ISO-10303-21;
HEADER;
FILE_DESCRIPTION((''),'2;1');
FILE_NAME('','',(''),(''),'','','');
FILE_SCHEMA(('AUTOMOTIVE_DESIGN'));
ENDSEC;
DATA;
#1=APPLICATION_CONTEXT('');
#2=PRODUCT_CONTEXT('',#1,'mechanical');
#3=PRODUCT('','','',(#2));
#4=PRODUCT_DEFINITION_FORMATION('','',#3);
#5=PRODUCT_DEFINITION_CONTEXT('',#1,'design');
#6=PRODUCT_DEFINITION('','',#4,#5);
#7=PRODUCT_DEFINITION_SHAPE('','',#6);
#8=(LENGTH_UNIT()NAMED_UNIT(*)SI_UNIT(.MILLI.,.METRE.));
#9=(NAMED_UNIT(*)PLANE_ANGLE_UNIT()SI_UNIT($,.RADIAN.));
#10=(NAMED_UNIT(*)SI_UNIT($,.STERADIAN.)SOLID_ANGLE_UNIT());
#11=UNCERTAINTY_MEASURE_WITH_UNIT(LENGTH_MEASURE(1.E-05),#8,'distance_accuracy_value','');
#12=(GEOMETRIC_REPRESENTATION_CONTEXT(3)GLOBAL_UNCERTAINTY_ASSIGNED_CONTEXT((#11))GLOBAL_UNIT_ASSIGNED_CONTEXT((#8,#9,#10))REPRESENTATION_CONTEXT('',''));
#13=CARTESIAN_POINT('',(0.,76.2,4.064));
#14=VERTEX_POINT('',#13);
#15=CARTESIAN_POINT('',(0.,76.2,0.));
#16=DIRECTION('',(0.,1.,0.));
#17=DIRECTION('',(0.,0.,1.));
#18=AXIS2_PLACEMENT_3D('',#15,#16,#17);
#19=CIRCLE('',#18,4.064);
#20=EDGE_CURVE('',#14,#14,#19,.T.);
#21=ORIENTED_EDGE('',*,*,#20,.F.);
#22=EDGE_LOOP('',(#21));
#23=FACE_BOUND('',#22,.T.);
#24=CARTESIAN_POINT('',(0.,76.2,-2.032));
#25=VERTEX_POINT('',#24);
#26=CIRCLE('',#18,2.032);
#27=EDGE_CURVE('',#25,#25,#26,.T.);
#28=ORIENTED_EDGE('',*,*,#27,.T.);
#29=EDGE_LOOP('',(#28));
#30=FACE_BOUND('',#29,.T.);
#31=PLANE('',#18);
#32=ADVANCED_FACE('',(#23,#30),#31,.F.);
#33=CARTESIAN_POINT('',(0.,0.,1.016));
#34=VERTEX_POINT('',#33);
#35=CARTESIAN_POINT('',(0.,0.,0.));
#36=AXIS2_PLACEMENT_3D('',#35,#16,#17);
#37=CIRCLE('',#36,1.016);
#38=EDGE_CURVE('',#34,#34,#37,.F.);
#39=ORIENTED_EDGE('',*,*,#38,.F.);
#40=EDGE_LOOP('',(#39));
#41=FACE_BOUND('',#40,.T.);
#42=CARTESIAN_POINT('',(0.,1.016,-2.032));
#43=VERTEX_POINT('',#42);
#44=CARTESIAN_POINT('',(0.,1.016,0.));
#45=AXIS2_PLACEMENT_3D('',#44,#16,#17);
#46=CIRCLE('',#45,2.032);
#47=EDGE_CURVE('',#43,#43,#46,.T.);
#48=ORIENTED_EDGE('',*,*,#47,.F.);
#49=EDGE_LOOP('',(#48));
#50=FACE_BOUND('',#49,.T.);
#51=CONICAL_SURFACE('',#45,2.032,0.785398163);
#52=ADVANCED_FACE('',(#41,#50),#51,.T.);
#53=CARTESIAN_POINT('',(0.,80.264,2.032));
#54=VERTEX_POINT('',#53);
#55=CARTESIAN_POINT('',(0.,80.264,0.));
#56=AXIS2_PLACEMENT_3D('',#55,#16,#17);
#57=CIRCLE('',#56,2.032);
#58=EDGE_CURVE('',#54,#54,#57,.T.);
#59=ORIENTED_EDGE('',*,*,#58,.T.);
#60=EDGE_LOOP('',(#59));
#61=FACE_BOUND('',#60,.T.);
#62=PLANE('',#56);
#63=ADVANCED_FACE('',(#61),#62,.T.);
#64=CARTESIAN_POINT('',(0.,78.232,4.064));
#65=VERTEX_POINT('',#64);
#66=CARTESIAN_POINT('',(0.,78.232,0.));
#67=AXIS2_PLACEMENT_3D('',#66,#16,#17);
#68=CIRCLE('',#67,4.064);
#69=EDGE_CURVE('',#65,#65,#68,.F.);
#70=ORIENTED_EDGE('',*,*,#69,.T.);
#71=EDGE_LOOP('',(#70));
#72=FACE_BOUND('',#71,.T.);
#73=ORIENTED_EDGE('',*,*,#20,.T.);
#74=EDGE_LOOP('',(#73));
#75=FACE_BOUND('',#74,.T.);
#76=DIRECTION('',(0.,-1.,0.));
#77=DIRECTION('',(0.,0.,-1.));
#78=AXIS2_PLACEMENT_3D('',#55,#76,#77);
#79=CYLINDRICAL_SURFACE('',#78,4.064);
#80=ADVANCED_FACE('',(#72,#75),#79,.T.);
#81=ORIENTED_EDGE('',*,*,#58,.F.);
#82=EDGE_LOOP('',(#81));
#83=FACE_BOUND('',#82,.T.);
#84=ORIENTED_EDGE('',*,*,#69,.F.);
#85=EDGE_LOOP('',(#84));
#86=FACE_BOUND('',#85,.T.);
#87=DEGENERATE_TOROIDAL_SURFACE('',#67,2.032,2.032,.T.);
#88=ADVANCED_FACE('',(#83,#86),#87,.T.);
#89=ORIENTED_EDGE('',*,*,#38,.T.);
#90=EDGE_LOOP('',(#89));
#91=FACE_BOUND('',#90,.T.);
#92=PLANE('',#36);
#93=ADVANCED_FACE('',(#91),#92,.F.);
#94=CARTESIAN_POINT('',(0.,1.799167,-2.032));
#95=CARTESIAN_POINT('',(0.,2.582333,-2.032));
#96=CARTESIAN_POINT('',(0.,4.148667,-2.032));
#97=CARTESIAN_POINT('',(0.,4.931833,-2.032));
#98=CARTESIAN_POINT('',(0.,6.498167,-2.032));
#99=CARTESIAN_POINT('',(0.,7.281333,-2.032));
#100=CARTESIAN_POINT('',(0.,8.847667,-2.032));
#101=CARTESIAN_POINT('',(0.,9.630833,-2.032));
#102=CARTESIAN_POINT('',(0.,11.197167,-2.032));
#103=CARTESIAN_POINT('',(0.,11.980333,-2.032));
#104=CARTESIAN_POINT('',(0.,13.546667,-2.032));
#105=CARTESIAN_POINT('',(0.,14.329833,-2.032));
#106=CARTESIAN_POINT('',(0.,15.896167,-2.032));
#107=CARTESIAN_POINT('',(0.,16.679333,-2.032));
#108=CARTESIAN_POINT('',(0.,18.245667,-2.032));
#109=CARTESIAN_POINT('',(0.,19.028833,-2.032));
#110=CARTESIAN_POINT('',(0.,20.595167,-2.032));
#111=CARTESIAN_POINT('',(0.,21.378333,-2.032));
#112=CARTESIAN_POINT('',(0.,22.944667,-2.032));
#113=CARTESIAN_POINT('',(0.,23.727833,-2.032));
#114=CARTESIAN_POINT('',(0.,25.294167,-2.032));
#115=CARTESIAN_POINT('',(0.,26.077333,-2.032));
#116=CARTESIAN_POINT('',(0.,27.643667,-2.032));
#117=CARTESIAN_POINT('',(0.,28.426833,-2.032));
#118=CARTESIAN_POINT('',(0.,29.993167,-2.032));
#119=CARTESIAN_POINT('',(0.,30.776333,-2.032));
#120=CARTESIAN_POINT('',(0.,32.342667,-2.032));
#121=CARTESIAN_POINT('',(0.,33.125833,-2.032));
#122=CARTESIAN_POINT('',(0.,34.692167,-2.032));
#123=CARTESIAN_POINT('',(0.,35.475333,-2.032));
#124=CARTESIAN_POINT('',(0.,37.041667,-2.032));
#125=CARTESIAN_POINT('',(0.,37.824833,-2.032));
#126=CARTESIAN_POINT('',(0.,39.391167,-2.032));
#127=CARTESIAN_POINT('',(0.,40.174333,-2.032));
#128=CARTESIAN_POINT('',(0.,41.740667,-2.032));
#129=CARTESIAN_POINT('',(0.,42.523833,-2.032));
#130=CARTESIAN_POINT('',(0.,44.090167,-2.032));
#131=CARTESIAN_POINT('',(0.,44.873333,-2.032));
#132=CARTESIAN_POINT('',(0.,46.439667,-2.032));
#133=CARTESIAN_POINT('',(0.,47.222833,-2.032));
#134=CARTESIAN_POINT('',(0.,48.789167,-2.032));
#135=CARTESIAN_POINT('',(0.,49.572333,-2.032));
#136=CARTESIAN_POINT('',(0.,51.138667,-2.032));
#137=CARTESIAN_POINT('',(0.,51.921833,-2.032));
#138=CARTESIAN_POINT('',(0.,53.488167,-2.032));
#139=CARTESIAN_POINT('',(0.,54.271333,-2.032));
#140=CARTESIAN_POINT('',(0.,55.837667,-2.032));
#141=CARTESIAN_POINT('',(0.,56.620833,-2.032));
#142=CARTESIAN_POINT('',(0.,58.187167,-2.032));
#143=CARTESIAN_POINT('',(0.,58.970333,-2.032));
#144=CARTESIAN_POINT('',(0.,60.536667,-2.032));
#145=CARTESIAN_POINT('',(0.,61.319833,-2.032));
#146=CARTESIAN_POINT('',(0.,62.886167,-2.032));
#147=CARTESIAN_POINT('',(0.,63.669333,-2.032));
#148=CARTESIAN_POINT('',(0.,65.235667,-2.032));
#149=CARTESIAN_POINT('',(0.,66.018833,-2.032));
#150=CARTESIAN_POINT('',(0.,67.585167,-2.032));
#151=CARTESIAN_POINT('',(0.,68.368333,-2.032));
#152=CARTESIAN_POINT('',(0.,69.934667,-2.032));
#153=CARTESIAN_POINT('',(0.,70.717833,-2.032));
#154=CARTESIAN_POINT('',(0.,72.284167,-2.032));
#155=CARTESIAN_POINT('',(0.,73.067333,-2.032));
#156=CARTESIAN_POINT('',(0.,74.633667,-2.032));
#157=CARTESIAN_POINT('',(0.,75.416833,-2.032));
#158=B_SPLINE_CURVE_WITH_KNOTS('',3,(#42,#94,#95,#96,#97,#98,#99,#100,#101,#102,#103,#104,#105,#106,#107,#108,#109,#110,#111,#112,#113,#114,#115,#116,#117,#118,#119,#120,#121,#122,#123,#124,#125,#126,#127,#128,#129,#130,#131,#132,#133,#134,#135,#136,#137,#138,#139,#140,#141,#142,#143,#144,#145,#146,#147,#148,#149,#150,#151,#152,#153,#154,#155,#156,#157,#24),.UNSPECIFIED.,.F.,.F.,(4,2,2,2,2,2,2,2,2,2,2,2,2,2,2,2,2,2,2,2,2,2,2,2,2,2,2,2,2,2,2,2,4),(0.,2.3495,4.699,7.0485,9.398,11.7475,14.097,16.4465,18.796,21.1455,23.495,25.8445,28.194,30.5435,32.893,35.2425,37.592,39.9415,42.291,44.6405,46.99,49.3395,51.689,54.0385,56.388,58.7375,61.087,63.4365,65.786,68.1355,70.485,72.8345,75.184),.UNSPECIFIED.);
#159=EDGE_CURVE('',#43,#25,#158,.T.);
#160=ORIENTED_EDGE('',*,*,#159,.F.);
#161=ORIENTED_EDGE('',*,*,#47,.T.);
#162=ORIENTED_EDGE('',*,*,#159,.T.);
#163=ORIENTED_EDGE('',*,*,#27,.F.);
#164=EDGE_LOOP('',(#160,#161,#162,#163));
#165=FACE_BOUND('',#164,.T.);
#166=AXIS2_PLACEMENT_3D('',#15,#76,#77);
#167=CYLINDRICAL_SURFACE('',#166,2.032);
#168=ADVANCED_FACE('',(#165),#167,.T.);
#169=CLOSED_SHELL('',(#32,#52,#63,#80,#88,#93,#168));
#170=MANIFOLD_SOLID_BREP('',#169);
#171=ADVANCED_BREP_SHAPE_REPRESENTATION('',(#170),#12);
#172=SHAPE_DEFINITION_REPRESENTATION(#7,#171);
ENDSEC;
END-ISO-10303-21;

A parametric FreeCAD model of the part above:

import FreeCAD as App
import Part
import Sketcher
Q = App.Units.Quantity


def edges_at(feature, points):
    """Names of the edges that pass closest to the given points."""
    edges = feature.Shape.Edges
    near = lambda p: min(range(len(edges)), key=lambda i: edges[i].distToShape(Part.Vertex(*p))[0])
    return sorted({f"Edge{near(p) + 1}" for p in points})

doc = App.newDocument("Part")
params = doc.addObject("Spreadsheet::Sheet", "Params")
for row, (alias, value) in enumerate([
    ("sketch1_diameter", "0.16 in"),
    ("pad1_length", "3 in"),
    ("sketch2_diameter", "0.32 in"),
    ("pad2_length", "0.16 in"),
    ("fillet_radius", "0.08 in"),
    ("chamfer_size", "0.04 in"),
], start=1):
    params.set(f"A{row}", alias)
    params.set(f"B{row}", "=" + value)
    params.setAlias(f"B{row}", alias)

body = doc.addObject("PartDesign::Body", "Body")

sketch1 = body.newObject("Sketcher::SketchObject", "Sketch")
sketch1.AttachmentSupport = (doc.getObject("XZ_Plane"), [""])
sketch1.MapMode = "FlatFace"
sketch1.addGeometry(Part.Circle(App.Vector(0, 0, 0), App.Vector(0, 0, 1), 2.032), False)
sketch1.addConstraint(Sketcher.Constraint("Coincident", 0, 3, -1, 1))
sketch1.addConstraint(Sketcher.Constraint("Diameter", 0, Q("0.16 in")))
sketch1.setExpression("Constraints[1]", "Params.sketch1_diameter")
pad1 = body.newObject("PartDesign::Pad", "Pad")
pad1.Profile = sketch1
pad1.setExpression("Length", "Params.pad1_length")
pad1.Reversed = True

sketch2 = body.newObject("Sketcher::SketchObject", "Sketch001")
sketch2.AttachmentSupport = (doc.getObject("XZ_Plane"), [""])
sketch2.MapMode = "FlatFace"
sketch2.AttachmentOffset = App.Placement(App.Vector(0, 0, -3 * 25.4), App.Rotation())
sketch2.addGeometry(Part.Circle(App.Vector(0, 0, 0), App.Vector(0, 0, 1), 4.064), False)
sketch2.addConstraint(Sketcher.Constraint("Coincident", 0, 3, -1, 1))
sketch2.addConstraint(Sketcher.Constraint("Diameter", 0, Q("0.32 in")))
sketch2.setExpression("Constraints[1]", "Params.sketch2_diameter")
pad2 = body.newObject("PartDesign::Pad", "Pad001")
pad2.Profile = sketch2
pad2.setExpression("Length", "Params.pad2_length")
pad2.Reversed = True
doc.recompute()

fillet = body.newObject("PartDesign::Fillet", "Fillet")
fillet.Base = (pad2, edges_at(pad2, [(0, 80.264, -4.064)]))
fillet.setExpression("Radius", "Params.fillet_radius")
doc.recompute()

chamfer = body.newObject("PartDesign::Chamfer", "Chamfer")
chamfer.Base = (fillet, edges_at(fillet, [(0, 0, 2.032)]))
chamfer.setExpression("Size", "Params.chamfer_size")

doc.recompute()
